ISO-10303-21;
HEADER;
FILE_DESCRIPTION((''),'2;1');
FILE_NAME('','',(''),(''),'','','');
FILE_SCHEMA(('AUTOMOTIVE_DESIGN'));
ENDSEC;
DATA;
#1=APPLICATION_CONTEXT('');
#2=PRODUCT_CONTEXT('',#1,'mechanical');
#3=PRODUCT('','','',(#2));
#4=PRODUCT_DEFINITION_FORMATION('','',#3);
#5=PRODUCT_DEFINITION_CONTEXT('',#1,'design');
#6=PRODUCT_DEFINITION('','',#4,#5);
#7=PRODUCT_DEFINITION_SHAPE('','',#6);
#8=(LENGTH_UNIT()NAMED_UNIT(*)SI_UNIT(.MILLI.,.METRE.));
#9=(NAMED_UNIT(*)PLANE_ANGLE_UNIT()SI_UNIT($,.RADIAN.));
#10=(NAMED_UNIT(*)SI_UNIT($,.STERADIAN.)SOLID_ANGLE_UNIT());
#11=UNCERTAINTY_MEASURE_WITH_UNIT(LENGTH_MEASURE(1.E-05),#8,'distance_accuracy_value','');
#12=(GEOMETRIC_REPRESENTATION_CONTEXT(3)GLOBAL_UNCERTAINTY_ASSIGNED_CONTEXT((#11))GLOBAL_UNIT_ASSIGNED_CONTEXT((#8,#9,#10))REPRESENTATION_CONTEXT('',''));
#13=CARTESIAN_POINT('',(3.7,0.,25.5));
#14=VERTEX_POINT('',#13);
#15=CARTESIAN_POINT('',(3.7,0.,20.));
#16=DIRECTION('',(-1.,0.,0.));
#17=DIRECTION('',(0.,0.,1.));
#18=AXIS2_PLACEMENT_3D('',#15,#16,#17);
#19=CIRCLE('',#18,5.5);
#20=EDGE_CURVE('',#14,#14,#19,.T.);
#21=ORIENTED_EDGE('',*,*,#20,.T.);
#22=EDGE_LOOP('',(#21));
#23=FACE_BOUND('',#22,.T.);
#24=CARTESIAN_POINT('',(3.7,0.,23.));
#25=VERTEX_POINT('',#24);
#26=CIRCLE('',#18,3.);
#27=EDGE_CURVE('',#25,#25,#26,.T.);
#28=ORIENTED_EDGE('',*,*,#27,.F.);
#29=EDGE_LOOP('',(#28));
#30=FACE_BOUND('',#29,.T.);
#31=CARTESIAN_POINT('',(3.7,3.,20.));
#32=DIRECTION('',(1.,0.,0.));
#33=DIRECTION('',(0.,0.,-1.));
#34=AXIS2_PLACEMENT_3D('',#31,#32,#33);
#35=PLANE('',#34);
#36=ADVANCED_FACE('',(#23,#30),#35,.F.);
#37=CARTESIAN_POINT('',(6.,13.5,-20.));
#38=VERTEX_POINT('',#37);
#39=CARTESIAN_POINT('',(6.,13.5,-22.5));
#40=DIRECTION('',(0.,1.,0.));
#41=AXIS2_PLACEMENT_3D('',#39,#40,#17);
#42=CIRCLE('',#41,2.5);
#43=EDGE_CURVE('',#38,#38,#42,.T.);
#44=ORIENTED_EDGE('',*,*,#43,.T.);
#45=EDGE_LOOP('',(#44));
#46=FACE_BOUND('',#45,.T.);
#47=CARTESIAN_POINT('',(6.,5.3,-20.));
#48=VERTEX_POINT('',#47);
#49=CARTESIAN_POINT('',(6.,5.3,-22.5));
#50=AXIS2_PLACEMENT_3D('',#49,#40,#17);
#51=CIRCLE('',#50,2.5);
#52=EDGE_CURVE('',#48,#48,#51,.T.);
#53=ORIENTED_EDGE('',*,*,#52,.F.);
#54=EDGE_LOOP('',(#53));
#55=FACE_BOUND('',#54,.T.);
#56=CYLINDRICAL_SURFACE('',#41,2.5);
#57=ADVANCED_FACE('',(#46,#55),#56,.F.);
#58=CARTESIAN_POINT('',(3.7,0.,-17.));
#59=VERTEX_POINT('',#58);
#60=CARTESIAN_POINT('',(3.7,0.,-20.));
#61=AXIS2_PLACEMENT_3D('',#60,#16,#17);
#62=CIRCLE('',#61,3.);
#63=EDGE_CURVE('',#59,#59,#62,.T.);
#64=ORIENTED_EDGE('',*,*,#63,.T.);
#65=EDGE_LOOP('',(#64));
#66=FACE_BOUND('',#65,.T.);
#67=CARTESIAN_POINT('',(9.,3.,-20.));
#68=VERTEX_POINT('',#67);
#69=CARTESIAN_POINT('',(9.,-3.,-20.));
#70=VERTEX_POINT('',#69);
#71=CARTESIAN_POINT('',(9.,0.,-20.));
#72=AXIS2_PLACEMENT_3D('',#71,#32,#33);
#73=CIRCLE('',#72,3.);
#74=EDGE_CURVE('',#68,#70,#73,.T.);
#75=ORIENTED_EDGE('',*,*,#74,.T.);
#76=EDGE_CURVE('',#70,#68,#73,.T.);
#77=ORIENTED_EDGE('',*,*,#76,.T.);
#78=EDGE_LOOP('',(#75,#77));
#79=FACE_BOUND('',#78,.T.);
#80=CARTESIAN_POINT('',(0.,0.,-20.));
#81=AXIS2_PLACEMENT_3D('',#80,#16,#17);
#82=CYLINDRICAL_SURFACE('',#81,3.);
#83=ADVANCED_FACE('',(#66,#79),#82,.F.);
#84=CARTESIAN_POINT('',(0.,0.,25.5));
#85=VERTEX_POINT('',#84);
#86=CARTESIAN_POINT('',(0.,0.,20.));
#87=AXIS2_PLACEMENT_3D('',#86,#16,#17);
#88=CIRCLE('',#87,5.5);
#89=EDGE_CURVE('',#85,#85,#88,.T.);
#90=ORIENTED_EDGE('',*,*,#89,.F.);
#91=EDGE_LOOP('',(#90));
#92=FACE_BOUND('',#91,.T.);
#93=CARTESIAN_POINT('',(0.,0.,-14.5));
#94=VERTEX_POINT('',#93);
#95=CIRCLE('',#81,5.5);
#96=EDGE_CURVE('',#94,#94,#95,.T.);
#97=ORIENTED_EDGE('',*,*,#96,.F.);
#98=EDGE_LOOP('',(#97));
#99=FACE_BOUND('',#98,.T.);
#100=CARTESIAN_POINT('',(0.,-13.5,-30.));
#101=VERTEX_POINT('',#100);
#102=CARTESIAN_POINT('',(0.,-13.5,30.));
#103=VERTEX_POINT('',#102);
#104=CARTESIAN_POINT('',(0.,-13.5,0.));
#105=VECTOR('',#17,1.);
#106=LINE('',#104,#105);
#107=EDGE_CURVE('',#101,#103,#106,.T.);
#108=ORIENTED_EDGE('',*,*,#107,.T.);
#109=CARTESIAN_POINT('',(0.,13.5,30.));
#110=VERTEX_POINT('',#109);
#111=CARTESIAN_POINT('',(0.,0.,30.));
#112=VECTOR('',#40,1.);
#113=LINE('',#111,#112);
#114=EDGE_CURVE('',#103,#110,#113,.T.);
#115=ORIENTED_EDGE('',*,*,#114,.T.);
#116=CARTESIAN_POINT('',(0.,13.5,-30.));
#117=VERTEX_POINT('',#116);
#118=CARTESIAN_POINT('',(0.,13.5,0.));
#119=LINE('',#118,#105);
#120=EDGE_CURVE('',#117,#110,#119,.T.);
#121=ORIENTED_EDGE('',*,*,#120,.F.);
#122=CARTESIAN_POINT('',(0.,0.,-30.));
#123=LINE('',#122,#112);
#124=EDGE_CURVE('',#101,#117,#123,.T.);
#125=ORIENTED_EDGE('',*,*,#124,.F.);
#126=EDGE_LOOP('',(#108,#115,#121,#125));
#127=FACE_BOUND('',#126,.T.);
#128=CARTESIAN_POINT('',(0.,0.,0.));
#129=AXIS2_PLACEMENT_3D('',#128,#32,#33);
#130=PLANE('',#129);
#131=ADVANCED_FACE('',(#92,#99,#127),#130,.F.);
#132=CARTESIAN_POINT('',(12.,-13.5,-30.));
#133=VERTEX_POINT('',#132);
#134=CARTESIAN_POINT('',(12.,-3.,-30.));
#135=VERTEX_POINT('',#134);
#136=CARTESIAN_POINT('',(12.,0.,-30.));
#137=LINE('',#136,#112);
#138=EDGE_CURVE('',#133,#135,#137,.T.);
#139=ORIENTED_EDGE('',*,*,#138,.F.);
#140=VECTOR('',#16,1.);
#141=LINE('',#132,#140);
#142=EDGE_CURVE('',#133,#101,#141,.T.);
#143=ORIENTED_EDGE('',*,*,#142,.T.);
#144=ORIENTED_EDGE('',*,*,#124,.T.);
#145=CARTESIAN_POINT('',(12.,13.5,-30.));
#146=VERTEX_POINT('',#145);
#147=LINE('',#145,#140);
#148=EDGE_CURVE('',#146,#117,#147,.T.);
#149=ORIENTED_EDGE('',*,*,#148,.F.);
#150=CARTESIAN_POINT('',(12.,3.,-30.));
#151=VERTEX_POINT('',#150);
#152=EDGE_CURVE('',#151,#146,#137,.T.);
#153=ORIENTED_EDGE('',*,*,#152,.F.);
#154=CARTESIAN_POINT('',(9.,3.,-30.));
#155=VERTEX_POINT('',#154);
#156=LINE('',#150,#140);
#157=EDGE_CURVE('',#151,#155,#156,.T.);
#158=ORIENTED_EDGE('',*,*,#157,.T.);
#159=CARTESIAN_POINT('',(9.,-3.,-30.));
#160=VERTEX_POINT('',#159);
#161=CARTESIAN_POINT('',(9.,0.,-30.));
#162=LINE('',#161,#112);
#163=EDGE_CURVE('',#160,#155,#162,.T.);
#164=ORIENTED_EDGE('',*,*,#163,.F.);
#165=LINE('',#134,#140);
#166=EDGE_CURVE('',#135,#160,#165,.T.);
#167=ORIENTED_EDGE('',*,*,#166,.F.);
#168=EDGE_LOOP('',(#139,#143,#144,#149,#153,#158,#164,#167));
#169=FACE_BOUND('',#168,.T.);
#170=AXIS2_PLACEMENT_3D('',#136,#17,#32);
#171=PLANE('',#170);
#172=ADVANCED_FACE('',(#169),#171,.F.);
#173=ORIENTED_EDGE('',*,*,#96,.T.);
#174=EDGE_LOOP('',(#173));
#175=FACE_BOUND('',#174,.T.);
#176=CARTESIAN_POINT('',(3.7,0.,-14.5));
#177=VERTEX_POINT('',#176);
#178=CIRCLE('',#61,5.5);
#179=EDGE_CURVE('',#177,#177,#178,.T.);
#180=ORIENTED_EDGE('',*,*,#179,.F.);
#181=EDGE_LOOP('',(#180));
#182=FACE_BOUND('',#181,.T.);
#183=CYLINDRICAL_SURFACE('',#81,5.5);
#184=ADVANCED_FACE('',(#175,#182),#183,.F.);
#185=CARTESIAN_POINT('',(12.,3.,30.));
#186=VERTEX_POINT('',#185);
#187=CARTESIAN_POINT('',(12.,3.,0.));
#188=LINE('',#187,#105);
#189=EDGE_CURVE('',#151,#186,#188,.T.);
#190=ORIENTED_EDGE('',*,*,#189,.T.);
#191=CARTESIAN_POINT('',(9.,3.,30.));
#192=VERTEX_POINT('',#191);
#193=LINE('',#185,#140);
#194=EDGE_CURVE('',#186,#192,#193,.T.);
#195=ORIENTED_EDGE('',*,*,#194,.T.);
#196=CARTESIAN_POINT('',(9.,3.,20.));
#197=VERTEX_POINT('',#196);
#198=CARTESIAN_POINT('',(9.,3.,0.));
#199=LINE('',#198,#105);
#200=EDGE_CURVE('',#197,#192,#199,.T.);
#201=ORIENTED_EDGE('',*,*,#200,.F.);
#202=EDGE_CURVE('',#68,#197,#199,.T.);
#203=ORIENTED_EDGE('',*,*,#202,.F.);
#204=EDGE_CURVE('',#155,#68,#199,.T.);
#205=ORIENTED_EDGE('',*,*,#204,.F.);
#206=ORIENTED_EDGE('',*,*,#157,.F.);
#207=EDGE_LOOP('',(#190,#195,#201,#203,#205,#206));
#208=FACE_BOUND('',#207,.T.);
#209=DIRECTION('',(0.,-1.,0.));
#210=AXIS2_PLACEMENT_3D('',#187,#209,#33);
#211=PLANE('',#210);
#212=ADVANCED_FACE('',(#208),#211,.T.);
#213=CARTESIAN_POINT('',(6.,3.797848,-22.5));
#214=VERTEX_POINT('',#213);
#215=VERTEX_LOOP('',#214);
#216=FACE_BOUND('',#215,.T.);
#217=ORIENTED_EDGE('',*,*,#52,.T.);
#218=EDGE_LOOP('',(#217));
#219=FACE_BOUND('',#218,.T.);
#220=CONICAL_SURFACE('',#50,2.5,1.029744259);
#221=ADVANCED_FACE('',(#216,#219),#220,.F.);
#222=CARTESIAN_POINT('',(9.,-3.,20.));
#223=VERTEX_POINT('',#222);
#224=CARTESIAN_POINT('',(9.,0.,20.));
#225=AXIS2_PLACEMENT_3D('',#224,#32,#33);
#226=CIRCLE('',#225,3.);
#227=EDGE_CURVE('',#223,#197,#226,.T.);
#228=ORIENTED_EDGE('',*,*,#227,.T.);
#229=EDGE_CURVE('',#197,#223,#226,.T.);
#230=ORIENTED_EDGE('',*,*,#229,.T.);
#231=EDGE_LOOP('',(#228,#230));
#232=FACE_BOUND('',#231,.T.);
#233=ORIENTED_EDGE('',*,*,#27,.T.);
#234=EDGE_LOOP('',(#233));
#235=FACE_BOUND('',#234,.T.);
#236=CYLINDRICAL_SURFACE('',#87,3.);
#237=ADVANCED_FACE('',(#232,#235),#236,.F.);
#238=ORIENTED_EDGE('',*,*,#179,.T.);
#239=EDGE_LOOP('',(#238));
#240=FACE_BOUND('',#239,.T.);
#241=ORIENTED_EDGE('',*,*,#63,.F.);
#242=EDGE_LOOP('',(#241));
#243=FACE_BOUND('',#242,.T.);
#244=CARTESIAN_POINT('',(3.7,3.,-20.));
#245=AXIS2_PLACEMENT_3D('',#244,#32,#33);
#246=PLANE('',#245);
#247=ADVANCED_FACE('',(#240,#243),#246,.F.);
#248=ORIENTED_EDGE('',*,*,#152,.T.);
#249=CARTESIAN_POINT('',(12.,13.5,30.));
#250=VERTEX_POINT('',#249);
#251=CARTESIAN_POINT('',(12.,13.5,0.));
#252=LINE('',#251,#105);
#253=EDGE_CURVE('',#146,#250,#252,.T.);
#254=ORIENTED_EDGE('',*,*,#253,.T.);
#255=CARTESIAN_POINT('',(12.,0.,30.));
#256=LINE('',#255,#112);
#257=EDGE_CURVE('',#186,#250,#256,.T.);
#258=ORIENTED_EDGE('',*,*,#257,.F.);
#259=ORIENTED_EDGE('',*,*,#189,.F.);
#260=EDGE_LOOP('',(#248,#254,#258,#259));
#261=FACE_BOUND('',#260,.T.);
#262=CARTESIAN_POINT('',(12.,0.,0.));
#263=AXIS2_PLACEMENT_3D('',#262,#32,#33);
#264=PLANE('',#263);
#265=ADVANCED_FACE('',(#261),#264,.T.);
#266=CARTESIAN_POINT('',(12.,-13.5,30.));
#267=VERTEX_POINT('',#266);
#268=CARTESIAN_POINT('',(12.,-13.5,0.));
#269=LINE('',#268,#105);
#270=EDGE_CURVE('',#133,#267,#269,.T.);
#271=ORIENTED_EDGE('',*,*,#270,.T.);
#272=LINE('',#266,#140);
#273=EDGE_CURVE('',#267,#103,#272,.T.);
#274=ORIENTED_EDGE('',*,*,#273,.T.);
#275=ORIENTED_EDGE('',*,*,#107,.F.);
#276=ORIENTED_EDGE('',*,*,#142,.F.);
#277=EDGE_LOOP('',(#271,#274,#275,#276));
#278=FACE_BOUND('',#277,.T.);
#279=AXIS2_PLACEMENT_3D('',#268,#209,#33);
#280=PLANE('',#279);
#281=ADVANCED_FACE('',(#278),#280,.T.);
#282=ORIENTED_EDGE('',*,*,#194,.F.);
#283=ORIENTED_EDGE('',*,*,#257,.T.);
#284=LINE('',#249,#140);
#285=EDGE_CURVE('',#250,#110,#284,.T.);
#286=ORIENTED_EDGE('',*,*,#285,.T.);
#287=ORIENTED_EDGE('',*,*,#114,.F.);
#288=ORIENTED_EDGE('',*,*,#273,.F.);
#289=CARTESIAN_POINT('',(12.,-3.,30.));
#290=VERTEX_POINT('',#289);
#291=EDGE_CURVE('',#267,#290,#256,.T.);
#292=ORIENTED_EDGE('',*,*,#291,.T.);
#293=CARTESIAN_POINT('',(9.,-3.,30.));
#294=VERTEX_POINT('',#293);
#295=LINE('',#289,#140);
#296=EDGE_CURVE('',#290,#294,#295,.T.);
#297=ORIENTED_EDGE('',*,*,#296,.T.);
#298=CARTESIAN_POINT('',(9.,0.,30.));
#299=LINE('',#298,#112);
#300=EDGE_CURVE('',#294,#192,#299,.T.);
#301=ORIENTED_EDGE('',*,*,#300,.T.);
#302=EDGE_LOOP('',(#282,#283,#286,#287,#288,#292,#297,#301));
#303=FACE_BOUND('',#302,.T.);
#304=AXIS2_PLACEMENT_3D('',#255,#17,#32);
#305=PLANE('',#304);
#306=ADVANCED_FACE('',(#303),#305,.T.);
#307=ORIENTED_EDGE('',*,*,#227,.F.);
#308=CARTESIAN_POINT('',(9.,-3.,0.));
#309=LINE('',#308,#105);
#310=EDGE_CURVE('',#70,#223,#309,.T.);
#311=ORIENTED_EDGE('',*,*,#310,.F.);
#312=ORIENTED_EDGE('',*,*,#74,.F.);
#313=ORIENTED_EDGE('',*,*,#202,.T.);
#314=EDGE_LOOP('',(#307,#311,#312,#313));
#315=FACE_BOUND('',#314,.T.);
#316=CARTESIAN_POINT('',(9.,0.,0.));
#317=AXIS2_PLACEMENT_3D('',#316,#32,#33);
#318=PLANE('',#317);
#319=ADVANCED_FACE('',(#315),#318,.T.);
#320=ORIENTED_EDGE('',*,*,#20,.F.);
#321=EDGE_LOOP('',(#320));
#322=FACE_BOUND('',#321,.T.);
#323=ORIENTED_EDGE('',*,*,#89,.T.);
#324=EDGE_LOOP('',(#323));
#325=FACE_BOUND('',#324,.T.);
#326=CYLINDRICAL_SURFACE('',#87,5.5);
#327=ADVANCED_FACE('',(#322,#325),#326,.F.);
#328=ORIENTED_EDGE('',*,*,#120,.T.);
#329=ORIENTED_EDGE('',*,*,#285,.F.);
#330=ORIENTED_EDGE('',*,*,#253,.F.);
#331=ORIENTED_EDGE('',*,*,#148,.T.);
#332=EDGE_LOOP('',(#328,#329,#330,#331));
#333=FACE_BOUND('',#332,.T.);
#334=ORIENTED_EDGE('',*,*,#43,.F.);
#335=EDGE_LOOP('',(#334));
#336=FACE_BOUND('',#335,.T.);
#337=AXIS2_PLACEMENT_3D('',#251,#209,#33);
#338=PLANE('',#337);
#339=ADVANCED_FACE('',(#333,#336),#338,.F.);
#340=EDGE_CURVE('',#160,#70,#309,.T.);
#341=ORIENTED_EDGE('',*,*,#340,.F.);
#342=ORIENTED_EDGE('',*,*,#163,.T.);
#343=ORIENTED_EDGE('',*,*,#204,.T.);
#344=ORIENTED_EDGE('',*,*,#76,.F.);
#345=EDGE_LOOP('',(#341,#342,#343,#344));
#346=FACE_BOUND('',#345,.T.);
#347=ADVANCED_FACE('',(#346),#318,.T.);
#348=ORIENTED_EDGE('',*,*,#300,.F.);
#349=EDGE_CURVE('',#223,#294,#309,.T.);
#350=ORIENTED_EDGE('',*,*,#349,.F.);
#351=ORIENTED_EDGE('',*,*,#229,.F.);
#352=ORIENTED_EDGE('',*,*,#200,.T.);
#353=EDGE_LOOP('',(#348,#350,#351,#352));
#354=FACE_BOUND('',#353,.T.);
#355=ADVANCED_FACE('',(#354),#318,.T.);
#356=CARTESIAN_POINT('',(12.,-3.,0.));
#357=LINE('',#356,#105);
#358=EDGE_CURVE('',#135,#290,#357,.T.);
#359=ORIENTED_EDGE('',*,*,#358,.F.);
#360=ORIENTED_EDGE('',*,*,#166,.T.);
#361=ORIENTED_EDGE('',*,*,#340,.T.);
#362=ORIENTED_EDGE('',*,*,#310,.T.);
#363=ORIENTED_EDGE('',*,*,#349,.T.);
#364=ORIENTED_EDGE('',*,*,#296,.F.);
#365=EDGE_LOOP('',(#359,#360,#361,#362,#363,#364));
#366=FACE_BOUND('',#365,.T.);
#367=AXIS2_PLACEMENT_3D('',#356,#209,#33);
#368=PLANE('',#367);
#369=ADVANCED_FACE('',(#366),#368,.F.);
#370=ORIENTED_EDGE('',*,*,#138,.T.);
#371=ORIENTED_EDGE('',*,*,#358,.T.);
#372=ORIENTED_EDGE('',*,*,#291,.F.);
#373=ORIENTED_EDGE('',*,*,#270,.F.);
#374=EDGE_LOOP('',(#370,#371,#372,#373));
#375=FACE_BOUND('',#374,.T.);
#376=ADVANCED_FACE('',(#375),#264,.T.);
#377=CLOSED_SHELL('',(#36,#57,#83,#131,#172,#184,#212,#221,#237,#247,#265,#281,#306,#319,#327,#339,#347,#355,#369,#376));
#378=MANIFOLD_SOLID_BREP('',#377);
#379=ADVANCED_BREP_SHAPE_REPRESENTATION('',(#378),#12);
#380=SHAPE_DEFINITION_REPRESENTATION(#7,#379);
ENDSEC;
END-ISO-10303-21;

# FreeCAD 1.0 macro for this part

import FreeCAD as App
import Part
import Sketcher

V = App.Vector
Q = App.Units.Quantity

doc = App.newDocument("Part")
body = doc.addObject("PartDesign::Body", "Body")

# Sketch on YZ plane
sketch1 = body.newObject("Sketcher::SketchObject", "Sketch")
sketch1.AttachmentSupport = (doc.getObject("YZ_Plane"), [""])
sketch1.MapMode = "FlatFace"
sketch1.addGeometry(Part.LineSegment(V(14, 30, 0), V(3, 30, 0)), False)
sketch1.addGeometry(Part.LineSegment(V(3, 30, 0), V(3, -30, 0)), False)
sketch1.addGeometry(Part.LineSegment(V(3, -30, 0), V(14, -30, 0)), False)
sketch1.addGeometry(Part.LineSegment(V(14, -30, 0), V(14, 30, 0)), False)
sketch1.addConstraint(Sketcher.Constraint("Coincident", 0, 2, 1, 1))
sketch1.addConstraint(Sketcher.Constraint("Coincident", 1, 2, 2, 1))
sketch1.addConstraint(Sketcher.Constraint("Coincident", 2, 2, 3, 1))
sketch1.addConstraint(Sketcher.Constraint("Coincident", 3, 2, 0, 1))
sketch1.addConstraint(Sketcher.Constraint("Horizontal", 0))
sketch1.addConstraint(Sketcher.Constraint("Vertical", 1))
sketch1.addConstraint(Sketcher.Constraint("Horizontal", 2))
sketch1.addConstraint(Sketcher.Constraint("Vertical", 3))
sketch1.addConstraint(Sketcher.Constraint("DistanceY", 1, 2, 1, 1, Q("60 mm")))
sketch1.addConstraint(Sketcher.Constraint("DistanceX", 0, 2, 0, 1, Q("10.5 mm")))
sketch1.addConstraint(Sketcher.Constraint("DistanceX", -1, 1, 0, 2, Q("3 mm")))
sketch1.addConstraint(Sketcher.Constraint("DistanceY", -1, 1, 0, 2, Q("30 mm")))
pad1 = body.newObject("PartDesign::Pad", "Pad")
pad1.Profile = sketch1
pad1.Length = 12
body2 = doc.addObject("PartDesign::Body", "Body001")

# Sketch on YZ plane
sketch2 = body2.newObject("Sketcher::SketchObject", "Sketch001")
sketch2.AttachmentSupport = (doc.getObject("YZ_Plane001"), [""])
sketch2.MapMode = "FlatFace"
sketch2.addGeometry(Part.LineSegment(V(-3, 30, 0), V(-14, 30, 0)), False)
sketch2.addGeometry(Part.LineSegment(V(-14, 30, 0), V(-14, -30, 0)), False)
sketch2.addGeometry(Part.LineSegment(V(-14, -30, 0), V(-3, -30, 0)), False)
sketch2.addGeometry(Part.LineSegment(V(-3, -30, 0), V(-3, 30, 0)), False)
sketch2.addConstraint(Sketcher.Constraint("Coincident", 0, 2, 1, 1))
sketch2.addConstraint(Sketcher.Constraint("Coincident", 1, 2, 2, 1))
sketch2.addConstraint(Sketcher.Constraint("Coincident", 2, 2, 3, 1))
sketch2.addConstraint(Sketcher.Constraint("Coincident", 3, 2, 0, 1))
sketch2.addConstraint(Sketcher.Constraint("Horizontal", 0))
sketch2.addConstraint(Sketcher.Constraint("Vertical", 1))
sketch2.addConstraint(Sketcher.Constraint("Horizontal", 2))
sketch2.addConstraint(Sketcher.Constraint("Vertical", 3))
sketch2.addConstraint(Sketcher.Constraint("DistanceY", 1, 2, 1, 1, Q("60 mm")))
sketch2.addConstraint(Sketcher.Constraint("DistanceX", 0, 2, 0, 1, Q("10.5 mm")))
sketch2.addConstraint(Sketcher.Constraint("DistanceY", -1, 1, 0, 2, Q("30 mm")))
sketch2.addConstraint(Sketcher.Constraint("DistanceX", 2, 2, -1, 1, Q("3 mm")))
pad2 = body2.newObject("PartDesign::Pad", "Pad001")
pad2.Profile = sketch2
pad2.Length = 12
body.AllowCompound = True
doc.recompute()

boolean = body.newObject("PartDesign::Boolean", "Boolean")
boolean.Type = "Fuse"
boolean.addObjects([body2])

# Sketch on YZ plane
sketch3 = body.newObject("Sketcher::SketchObject", "Sketch002")
sketch3.AttachmentSupport = (doc.getObject("YZ_Plane"), [""])
sketch3.MapMode = "FlatFace"
sketch3.addGeometry(Part.LineSegment(V(3, 30, 0), V(-3, 30, 0)), False)
sketch3.addGeometry(Part.LineSegment(V(-3, 30, 0), V(-3, -30, 0)), False)
sketch3.addGeometry(Part.LineSegment(V(-3, -30, 0), V(3, -30, 0)), False)
sketch3.addGeometry(Part.LineSegment(V(3, -30, 0), V(3, 30, 0)), False)
sketch3.addConstraint(Sketcher.Constraint("Coincident", 0, 2, 1, 1))
sketch3.addConstraint(Sketcher.Constraint("Coincident", 1, 2, 2, 1))
sketch3.addConstraint(Sketcher.Constraint("Coincident", 2, 2, 3, 1))
sketch3.addConstraint(Sketcher.Constraint("Coincident", 3, 2, 0, 1))
sketch3.addConstraint(Sketcher.Constraint("Horizontal", 0))
sketch3.addConstraint(Sketcher.Constraint("Vertical", 1))
sketch3.addConstraint(Sketcher.Constraint("Horizontal", 2))
sketch3.addConstraint(Sketcher.Constraint("Vertical", 3))
sketch3.addConstraint(Sketcher.Constraint("Symmetric", 0, 2, 2, 2, -1, 1))
sketch3.addConstraint(Sketcher.Constraint("DistanceX", 0, 2, 0, 1, Q("6 mm")))
sketch3.addConstraint(Sketcher.Constraint("DistanceY", 1, 2, 1, 1, Q("60 mm")))
pad3 = body.newObject("PartDesign::Pad", "Pad002")
pad3.Profile = sketch3
pad3.Length = 9

# Sketch on YZ plane
sketch4 = body.newObject("Sketcher::SketchObject", "Sketch003")
sketch4.AttachmentSupport = (doc.getObject("YZ_Plane"), [""])
sketch4.MapMode = "FlatFace"
sketch4.addGeometry(Part.Circle(V(0, -20, 0), V(0, 0, 1), 3), False)
sketch4.addGeometry(Part.Circle(V(0, 20, 0), V(0, 0, 1), 3), False)
sketch4.addConstraint(Sketcher.Constraint("Equal", 0, 1))
sketch4.addConstraint(Sketcher.Constraint("Symmetric", 0, 3, 1, 3, -1, 1))
sketch4.addConstraint(Sketcher.Constraint("PointOnObject", 0, 3, -2))
sketch4.addConstraint(Sketcher.Constraint("Diameter", 0, Q("6 mm")))
sketch4.addConstraint(Sketcher.Constraint("DistanceY", 0, 3, -1, 1, Q("20 mm")))
doc.recompute()
hole = body.newObject("PartDesign::Hole", "Hole")
hole.Profile = sketch4
hole.ThreadType = "None"
hole.Diameter = 6
hole.DepthType = "ThroughAll"
hole.HoleCutType = "Counterbore"
hole.HoleCutDiameter = 11
hole.HoleCutDepth = 3.7
hole.Reversed = True

# Sketch on XZ plane
sketch5 = body.newObject("Sketcher::SketchObject", "Sketch004")
sketch5.AttachmentSupport = (doc.getObject("XZ_Plane"), [""])
sketch5.MapMode = "FlatFace"
sketch5.AttachmentOffset = App.Placement(V(0, 0, -13.5), App.Rotation())
sketch5.addGeometry(Part.Circle(V(6, -22.5, 0), V(0, 0, 1), 2.5), False)
sketch5.addConstraint(Sketcher.Constraint("Diameter", 0, Q("5 mm")))
sketch5.addConstraint(Sketcher.Constraint("DistanceX", -1, 1, 0, 3, Q("6 mm")))
sketch5.addConstraint(Sketcher.Constraint("DistanceY", 0, 3, -1, 1, Q("22.5 mm")))
doc.recompute()
hole2 = body.newObject("PartDesign::Hole", "Hole001")
hole2.Profile = sketch5
hole2.ThreadType = "None"
hole2.Diameter = 5
hole2.DepthType = "Dimension"
hole2.Depth = 8.2
hole2.DrillPoint = "Angled"
hole2.DrillPointAngle = 118
hole2.Reversed = True

# Sketch on XZ plane
sketch6 = body.newObject("Sketcher::SketchObject", "Sketch005")
sketch6.AttachmentSupport = (doc.getObject("XZ_Plane"), [""])
sketch6.MapMode = "FlatFace"
sketch6.addGeometry(Part.Circle(V(-5, -17.9, 0), V(0, 0, 1), 2.5), False)
sketch6.addGeometry(Part.Circle(V(-9.1, -17.5, 0), V(0, 0, 1), 2.5), False)
sketch6.addConstraint(Sketcher.Constraint("Equal", 0, 1))
sketch6.addConstraint(Sketcher.Constraint("Diameter", 0, Q("5 mm")))
sketch6.addConstraint(Sketcher.Constraint("DistanceY", 0, 3, -1, 1, Q("17.906999 mm")))
sketch6.addConstraint(Sketcher.Constraint("DistanceX", 0, 3, -1, 1, Q("4.960949 mm")))
sketch6.addConstraint(Sketcher.Constraint("DistanceX", 1, 3, -1, 1, Q("9.102281 mm")))
sketch6.addConstraint(Sketcher.Constraint("DistanceY", 0, 3, 1, 3, Q("0.436961 mm")))
doc.recompute()
hole3 = body.newObject("PartDesign::Hole", "Hole002")
hole3.Profile = sketch6
hole3.ThreadType = "None"
hole3.Diameter = 5
hole3.DepthType = "Dimension"
hole3.Depth = 8.2
hole3.DrillPoint = "Angled"
hole3.DrillPointAngle = 118
hole3.Reversed = True

doc.recompute()
